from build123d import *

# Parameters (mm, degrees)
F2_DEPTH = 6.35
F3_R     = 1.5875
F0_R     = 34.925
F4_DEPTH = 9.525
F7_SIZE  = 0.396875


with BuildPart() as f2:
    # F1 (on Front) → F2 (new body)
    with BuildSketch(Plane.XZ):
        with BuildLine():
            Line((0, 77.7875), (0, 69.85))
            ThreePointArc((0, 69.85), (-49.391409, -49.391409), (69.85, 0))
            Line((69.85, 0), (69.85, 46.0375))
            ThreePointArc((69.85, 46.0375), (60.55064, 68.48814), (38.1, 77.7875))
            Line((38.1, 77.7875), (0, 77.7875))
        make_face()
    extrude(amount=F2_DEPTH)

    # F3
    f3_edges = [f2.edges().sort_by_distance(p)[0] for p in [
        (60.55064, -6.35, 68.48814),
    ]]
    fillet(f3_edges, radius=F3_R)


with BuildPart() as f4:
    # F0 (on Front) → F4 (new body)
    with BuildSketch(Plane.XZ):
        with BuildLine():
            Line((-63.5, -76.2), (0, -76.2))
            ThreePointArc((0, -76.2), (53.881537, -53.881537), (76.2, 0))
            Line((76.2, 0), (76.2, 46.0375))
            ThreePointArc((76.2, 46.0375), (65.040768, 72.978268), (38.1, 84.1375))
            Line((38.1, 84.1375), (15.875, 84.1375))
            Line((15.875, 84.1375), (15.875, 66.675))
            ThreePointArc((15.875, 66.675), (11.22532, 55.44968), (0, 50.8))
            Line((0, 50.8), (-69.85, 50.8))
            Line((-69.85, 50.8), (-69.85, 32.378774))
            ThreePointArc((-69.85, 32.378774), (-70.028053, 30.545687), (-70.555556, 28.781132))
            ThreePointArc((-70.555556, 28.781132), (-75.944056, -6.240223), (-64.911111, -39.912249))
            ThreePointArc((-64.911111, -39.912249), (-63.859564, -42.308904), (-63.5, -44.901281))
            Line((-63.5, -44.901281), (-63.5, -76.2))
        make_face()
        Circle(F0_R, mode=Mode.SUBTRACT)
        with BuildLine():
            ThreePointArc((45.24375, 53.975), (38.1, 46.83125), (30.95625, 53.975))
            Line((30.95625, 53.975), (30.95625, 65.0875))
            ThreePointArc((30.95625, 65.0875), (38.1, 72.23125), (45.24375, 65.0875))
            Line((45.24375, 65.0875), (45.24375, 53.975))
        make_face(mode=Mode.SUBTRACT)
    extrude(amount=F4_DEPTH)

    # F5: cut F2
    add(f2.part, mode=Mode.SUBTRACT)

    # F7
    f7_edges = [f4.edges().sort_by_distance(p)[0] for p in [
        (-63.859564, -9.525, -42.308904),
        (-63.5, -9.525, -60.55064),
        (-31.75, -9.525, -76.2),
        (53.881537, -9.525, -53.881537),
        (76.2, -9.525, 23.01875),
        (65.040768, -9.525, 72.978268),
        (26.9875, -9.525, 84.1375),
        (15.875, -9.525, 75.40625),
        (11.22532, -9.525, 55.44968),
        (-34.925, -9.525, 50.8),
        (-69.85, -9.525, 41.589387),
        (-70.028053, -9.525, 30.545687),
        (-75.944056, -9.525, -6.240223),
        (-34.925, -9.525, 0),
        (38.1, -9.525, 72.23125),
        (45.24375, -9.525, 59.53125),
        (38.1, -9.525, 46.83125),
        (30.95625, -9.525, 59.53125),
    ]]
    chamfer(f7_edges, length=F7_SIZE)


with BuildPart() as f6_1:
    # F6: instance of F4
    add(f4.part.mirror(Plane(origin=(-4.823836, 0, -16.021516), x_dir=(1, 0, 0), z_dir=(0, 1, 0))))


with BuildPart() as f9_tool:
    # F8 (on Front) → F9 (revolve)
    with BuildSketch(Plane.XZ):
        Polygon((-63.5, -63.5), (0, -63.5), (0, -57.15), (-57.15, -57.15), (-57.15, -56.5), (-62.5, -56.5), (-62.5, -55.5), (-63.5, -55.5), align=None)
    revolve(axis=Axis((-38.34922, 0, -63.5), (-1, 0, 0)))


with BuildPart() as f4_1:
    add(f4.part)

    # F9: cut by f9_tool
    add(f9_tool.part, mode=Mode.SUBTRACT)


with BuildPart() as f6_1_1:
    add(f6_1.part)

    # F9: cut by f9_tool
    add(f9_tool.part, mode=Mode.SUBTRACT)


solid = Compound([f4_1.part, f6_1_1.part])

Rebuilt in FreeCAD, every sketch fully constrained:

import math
import FreeCAD as App
import Part
import Sketcher
from FreeCAD import Vector
Q = App.Units.Quantity


def edges_at(feature, points):
    """Names of the edges that pass closest to the given points."""
    edges = feature.Shape.Edges
    near = lambda p: min(range(len(edges)), key=lambda i: edges[i].distToShape(Part.Vertex(*p))[0])
    return sorted({f"Edge{near(p) + 1}" for p in points})


def add_polygon(sketch, points):
    """Adds a closed chain of lines whose ends are joined by coincident constraints."""
    first, n = sketch.GeometryCount, len(points)
    for a, b in zip(points, points[1:] + points[:1]):
        sketch.addGeometry(Part.LineSegment(App.Vector(*a, 0), App.Vector(*b, 0)), False)
    for i in range(n):
        sketch.addConstraint(Sketcher.Constraint("Coincident", first + i, 2, first + (i + 1) % n, 1))

doc = App.newDocument("Part")
body = doc.addObject("PartDesign::Body", "Body")

# Sketch on XZ plane
sketch1 = body.newObject("Sketcher::SketchObject", "Sketch")
sketch1.AttachmentSupport = (doc.getObject("XZ_Plane"), [""])
sketch1.MapMode = "FlatFace"
sketch1.addGeometry(Part.LineSegment(Vector(0, 78, 0), Vector(0, 70, 0)), False)
sketch1.addGeometry(Part.ArcOfCircle(Part.Circle(Vector(0, 0, 0), Vector(0, 0, 1), 70), math.radians(90), math.radians(360)), False)
sketch1.addGeometry(Part.LineSegment(Vector(70, 0, 0), Vector(70, 46, 0)), False)
sketch1.addGeometry(Part.ArcOfCircle(Part.Circle(Vector(38, 46, 0), Vector(0, 0, 1), 32), math.radians(0), math.radians(90)), False)
sketch1.addGeometry(Part.LineSegment(Vector(38, 78, 0), Vector(0, 78, 0)), False)
sketch1.addConstraint(Sketcher.Constraint("Coincident", 0, 2, 1, 1))
sketch1.addConstraint(Sketcher.Constraint("Tangent", 1, 2, 2, 1))
sketch1.addConstraint(Sketcher.Constraint("Tangent", 2, 2, 3, 1))
sketch1.addConstraint(Sketcher.Constraint("Tangent", 3, 2, 4, 1))
sketch1.addConstraint(Sketcher.Constraint("Coincident", 4, 2, 0, 1))
sketch1.addConstraint(Sketcher.Constraint("Vertical", 0))
sketch1.addConstraint(Sketcher.Constraint("Vertical", 2))
sketch1.addConstraint(Sketcher.Constraint("Horizontal", 4))
sketch1.addConstraint(Sketcher.Constraint("Coincident", 1, 3, -1, 1))
sketch1.addConstraint(Sketcher.Constraint("PointOnObject", 0, 2, -2))
sketch1.addConstraint(Sketcher.Constraint("Radius", 1, Q("2.75 in")))
sketch1.addConstraint(Sketcher.Constraint("Radius", 3, Q("1.25 in")))
sketch1.addConstraint(Sketcher.Constraint("DistanceY", 0, 2, 0, 1, Q("0.3125 in")))
pad1 = body.newObject("PartDesign::Pad", "Pad")
pad1.Profile = sketch1
pad1.Length = Q("0.25 in")
doc.recompute()

fillet = body.newObject("PartDesign::Fillet", "Fillet")
fillet.Base = (pad1, edges_at(pad1, [(60.551, -6.35, 68.488)]))
fillet.Radius = Q("0.0625 in")
body2 = doc.addObject("PartDesign::Body", "Body001")

# Sketch on XZ plane
sketch2 = body2.newObject("Sketcher::SketchObject", "Sketch001")
sketch2.AttachmentSupport = (doc.getObject("XZ_Plane001"), [""])
sketch2.MapMode = "FlatFace"
sketch2.addGeometry(Part.LineSegment(Vector(-63.5, -76.2, 0), Vector(0, -76.2, 0)), False)
sketch2.addGeometry(Part.ArcOfCircle(Part.Circle(Vector(0, 0, 0), Vector(0, 0, 1), 76.2), math.radians(-90), math.radians(0)), False)
sketch2.addGeometry(Part.LineSegment(Vector(76.2, 0, 0), Vector(76.2, 46, 0)), False)
sketch2.addGeometry(Part.ArcOfCircle(Part.Circle(Vector(38.1, 46, 0), Vector(0, 0, 1), 38.1), math.radians(0), math.radians(90)), False)
sketch2.addGeometry(Part.LineSegment(Vector(38.1, 84.1, 0), Vector(15.9, 84.1, 0)), False)
sketch2.addGeometry(Part.LineSegment(Vector(15.9, 84.1, 0), Vector(15.9, 66.7, 0)), False)
sketch2.addGeometry(Part.ArcOfCircle(Part.Circle(Vector(0, 66.7, 0), Vector(0, 0, 1), 15.9), math.radians(-90), math.radians(0)), False)
sketch2.addGeometry(Part.LineSegment(Vector(0, 50.8, 0), Vector(-69.8, 50.8, 0)), False)
sketch2.addGeometry(Part.LineSegment(Vector(-69.8, 50.8, 0), Vector(-69.8, 32.4, 0)), False)
sketch2.addGeometry(Part.ArcOfCircle(Part.Circle(Vector(-79.4, 32.4, 0), Vector(0, 0, 1), 9.5), math.radians(-22), math.radians(0)), False)
sketch2.addGeometry(Part.ArcOfCircle(Part.Circle(Vector(0, 0, 0), Vector(0, 0, 1), 76.2), math.radians(158), math.radians(212)), False)
sketch2.addGeometry(Part.ArcOfCircle(Part.Circle(Vector(-73, -44.9, 0), Vector(0, 0, 1), 9.5), math.radians(0), math.radians(32)), False)
sketch2.addGeometry(Part.LineSegment(Vector(-63.5, -44.9, 0), Vector(-63.5, -76.2, 0)), False)
sketch2.addGeometry(Part.Circle(Vector(0, 0, 0), Vector(0, 0, 1), 34.9), False)
sketch2.addGeometry(Part.LineSegment(Vector(45.2, 65.1, 0), Vector(45.2, 54, 0)), False)
sketch2.addGeometry(Part.ArcOfCircle(Part.Circle(Vector(38.1, 54, 0), Vector(0, 0, 1), 7.1), math.radians(180), math.radians(360)), False)
sketch2.addGeometry(Part.LineSegment(Vector(31, 54, 0), Vector(31, 65.1, 0)), False)
sketch2.addGeometry(Part.ArcOfCircle(Part.Circle(Vector(38.1, 65.1, 0), Vector(0, 0, 1), 7.1), math.radians(0), math.radians(180)), False)
sketch2.addConstraint(Sketcher.Constraint("Tangent", 0, 2, 1, 1))
sketch2.addConstraint(Sketcher.Constraint("Tangent", 1, 2, 2, 1))
sketch2.addConstraint(Sketcher.Constraint("Tangent", 2, 2, 3, 1))
sketch2.addConstraint(Sketcher.Constraint("Tangent", 3, 2, 4, 1))
sketch2.addConstraint(Sketcher.Constraint("Coincident", 4, 2, 5, 1))
sketch2.addConstraint(Sketcher.Constraint("Tangent", 5, 2, 6, 2))
sketch2.addConstraint(Sketcher.Constraint("Tangent", 6, 1, 7, 1))
sketch2.addConstraint(Sketcher.Constraint("Coincident", 7, 2, 8, 1))
sketch2.addConstraint(Sketcher.Constraint("Tangent", 8, 2, 9, 2))
sketch2.addConstraint(Sketcher.Constraint("Tangent", 9, 1, 10, 1))
sketch2.addConstraint(Sketcher.Constraint("Tangent", 10, 2, 11, 2))
sketch2.addConstraint(Sketcher.Constraint("Tangent", 11, 1, 12, 1))
sketch2.addConstraint(Sketcher.Constraint("Coincident", 12, 2, 0, 1))
sketch2.addConstraint(Sketcher.Constraint("Tangent", 14, 2, 15, 2))
sketch2.addConstraint(Sketcher.Constraint("Tangent", 15, 1, 16, 1))
sketch2.addConstraint(Sketcher.Constraint("Tangent", 16, 2, 17, 2))
sketch2.addConstraint(Sketcher.Constraint("Tangent", 17, 1, 14, 1))
sketch2.addConstraint(Sketcher.Constraint("Horizontal", 0))
sketch2.addConstraint(Sketcher.Constraint("Vertical", 2))
sketch2.addConstraint(Sketcher.Constraint("Horizontal", 4))
sketch2.addConstraint(Sketcher.Constraint("Vertical", 5))
sketch2.addConstraint(Sketcher.Constraint("Horizontal", 7))
sketch2.addConstraint(Sketcher.Constraint("Vertical", 8))
sketch2.addConstraint(Sketcher.Constraint("Vertical", 12))
sketch2.addConstraint(Sketcher.Constraint("Vertical", 14))
sketch2.addConstraint(Sketcher.Constraint("Vertical", 16))
sketch2.addConstraint(Sketcher.Constraint("Coincident", 1, 3, -1, 1))
sketch2.addConstraint(Sketcher.Constraint("Coincident", 10, 3, -1, 1))
sketch2.addConstraint(Sketcher.Constraint("Coincident", 13, 3, -1, 1))
sketch2.addConstraint(Sketcher.Constraint("Equal", 1, 10))
sketch2.addConstraint(Sketcher.Constraint("PointOnObject", 6, 3, -2))
sketch2.addConstraint(Sketcher.Constraint("Vertical", 3, 3, 15, 3))
sketch2.addConstraint(Sketcher.Constraint("Radius", 1, Q("3 in")))
sketch2.addConstraint(Sketcher.Constraint("Radius", 3, Q("1.5 in")))
sketch2.addConstraint(Sketcher.Constraint("Diameter", 13, Q("2.75 in")))
sketch2.addConstraint(Sketcher.Constraint("DistanceX", 0, 1, 0, 2, Q("2.5 in")))
sketch2.addConstraint(Sketcher.Constraint("DistanceY", -1, 1, 6, 1, Q("2 in")))
sketch2.addConstraint(Sketcher.Constraint("Radius", 6, Q("0.625 in")))
sketch2.addConstraint(Sketcher.Constraint("Radius", 15, Q("0.28125 in")))
sketch2.addConstraint(Sketcher.Constraint("DistanceX", 7, 2, 7, 1, Q("2.75 in")))
sketch2.addConstraint(Sketcher.Constraint("DistanceY", 15, 3, 6, 3, Q("0.5 in")))
sketch2.addConstraint(Sketcher.Constraint("DistanceY", 2, 1, 2, 2, Q("1.8125 in")))
sketch2.addConstraint(Sketcher.Constraint("DistanceY", 14, 2, 14, 1, Q("0.4375 in")))
sketch2.addConstraint(Sketcher.Constraint("DistanceX", 9, 3, 11, 3, Q("0.2499999 in")))
sketch2.addConstraint(Sketcher.Constraint("Radius", 9, Q("9.52499 mm")))
pad2 = body2.newObject("PartDesign::Pad", "Pad001")
pad2.Profile = sketch2
pad2.Length = Q("0.375 in")
doc.recompute()

boolean = body2.newObject("PartDesign::Boolean", "Boolean")
boolean.Type = "Cut"
boolean.addObjects([body])
doc.recompute()

chamfer = body2.newObject("PartDesign::Chamfer", "Chamfer")
chamfer.Base = (boolean, edges_at(boolean, [
    (-63.86, -9.525, -42.309),
    (-63.5, -9.525, -60.551),
    (-31.75, -9.525, -76.2),
    (53.882, -9.525, -53.882),
    (76.2, -9.525, 23.019),
    (65.041, -9.525, 72.978),
    (26.988, -9.525, 84.138),
    (15.875, -9.525, 75.406),
    (11.225, -9.525, 55.45),
    (-34.925, -9.525, 50.8),
    (-69.85, -9.525, 41.589),
    (-70.028, -9.525, 30.546),
    (-75.944, -9.525, -6.24),
    (-34.925, -9.525, 0),
    (38.1, -9.525, 72.231),
    (45.244, -9.525, 59.531),
    (38.1, -9.525, 46.831),
    (30.956, -9.525, 59.531),
]))
chamfer.Size = Q("0.015625 in")
body3 = doc.addObject("PartDesign::Body", "Body002")
doc.recompute()

mirroring = doc.addObject("Part::Mirroring", "Mirroring")
mirroring.Source = body2
mirroring.Base = Vector(-4.823836, 0, -16.021516)
mirroring.Normal = Vector(0, 1, 0)
body3.BaseFeature = mirroring
doc.recompute()
body4 = doc.addObject("PartDesign::Body", "Body003")

# Sketch on XZ plane
sketch3 = body4.newObject("Sketcher::SketchObject", "Sketch002")
sketch3.AttachmentSupport = (doc.getObject("XZ_Plane003"), [""])
sketch3.MapMode = "FlatFace"
add_polygon(sketch3, [(-63.5, -63.5), (0, -63.5), (0, -57.1), (-57.1, -57.1), (-57.1, -56.5), (-62.5, -56.5), (-62.5, -55.5), (-63.5, -55.5)])  # lines 0-7
sketch3.addGeometry(Part.LineSegment(Vector(0, -63.5, 0), Vector(-63.5, -63.5, 0)), True)  # axis
sketch3.addConstraint(Sketcher.Constraint("Horizontal", 0))
sketch3.addConstraint(Sketcher.Constraint("Vertical", 1))
sketch3.addConstraint(Sketcher.Constraint("Horizontal", 2))
sketch3.addConstraint(Sketcher.Constraint("Vertical", 3))
sketch3.addConstraint(Sketcher.Constraint("Horizontal", 4))
sketch3.addConstraint(Sketcher.Constraint("Vertical", 5))
sketch3.addConstraint(Sketcher.Constraint("Horizontal", 6))
sketch3.addConstraint(Sketcher.Constraint("Vertical", 7))
sketch3.addConstraint(Sketcher.Constraint("Horizontal", 8))
sketch3.addConstraint(Sketcher.Constraint("Coincident", 8, 1, 0, 2))
sketch3.addConstraint(Sketcher.Constraint("PointOnObject", 0, 2, -2))
sketch3.addConstraint(Sketcher.Constraint("Vertical", 6, 2, 8, 2))
sketch3.addConstraint(Sketcher.Constraint("Equal", 6, 5))
sketch3.addConstraint(Sketcher.Constraint("DistanceX", 0, 1, 0, 2, Q("2.5 in")))
sketch3.addConstraint(Sketcher.Constraint("DistanceX", 2, 2, 2, 1, Q("2.25 in")))
sketch3.addConstraint(Sketcher.Constraint("DistanceY", 1, 1, 1, 2, Q("0.25 in")))
sketch3.addConstraint(Sketcher.Constraint("DistanceY", 0, 2, -1, 1, Q("2.5 in")))
sketch3.addConstraint(Sketcher.Constraint("DistanceX", 4, 2, 4, 1, Q("5.35 mm")))
sketch3.addConstraint(Sketcher.Constraint("DistanceY", 3, 1, 3, 2, Q("0.65 mm")))
revolution = body4.newObject("PartDesign::Revolution", "Revolution")
revolution.Profile = sketch3
revolution.ReferenceAxis = (sketch3, ["Axis0"])
revolution.Angle = 360
doc.recompute()

body5 = doc.addObject("PartDesign::Body", "Body004")
body5.BaseFeature = body4
boolean2 = body2.newObject("PartDesign::Boolean", "Boolean001")
boolean2.Type = "Cut"
boolean2.addObjects([body5])
doc.recompute()

boolean3 = body3.newObject("PartDesign::Boolean", "Boolean002")
boolean3.Type = "Cut"
boolean3.addObjects([body4])
mirroring.Visibility = False

doc.recompute()
